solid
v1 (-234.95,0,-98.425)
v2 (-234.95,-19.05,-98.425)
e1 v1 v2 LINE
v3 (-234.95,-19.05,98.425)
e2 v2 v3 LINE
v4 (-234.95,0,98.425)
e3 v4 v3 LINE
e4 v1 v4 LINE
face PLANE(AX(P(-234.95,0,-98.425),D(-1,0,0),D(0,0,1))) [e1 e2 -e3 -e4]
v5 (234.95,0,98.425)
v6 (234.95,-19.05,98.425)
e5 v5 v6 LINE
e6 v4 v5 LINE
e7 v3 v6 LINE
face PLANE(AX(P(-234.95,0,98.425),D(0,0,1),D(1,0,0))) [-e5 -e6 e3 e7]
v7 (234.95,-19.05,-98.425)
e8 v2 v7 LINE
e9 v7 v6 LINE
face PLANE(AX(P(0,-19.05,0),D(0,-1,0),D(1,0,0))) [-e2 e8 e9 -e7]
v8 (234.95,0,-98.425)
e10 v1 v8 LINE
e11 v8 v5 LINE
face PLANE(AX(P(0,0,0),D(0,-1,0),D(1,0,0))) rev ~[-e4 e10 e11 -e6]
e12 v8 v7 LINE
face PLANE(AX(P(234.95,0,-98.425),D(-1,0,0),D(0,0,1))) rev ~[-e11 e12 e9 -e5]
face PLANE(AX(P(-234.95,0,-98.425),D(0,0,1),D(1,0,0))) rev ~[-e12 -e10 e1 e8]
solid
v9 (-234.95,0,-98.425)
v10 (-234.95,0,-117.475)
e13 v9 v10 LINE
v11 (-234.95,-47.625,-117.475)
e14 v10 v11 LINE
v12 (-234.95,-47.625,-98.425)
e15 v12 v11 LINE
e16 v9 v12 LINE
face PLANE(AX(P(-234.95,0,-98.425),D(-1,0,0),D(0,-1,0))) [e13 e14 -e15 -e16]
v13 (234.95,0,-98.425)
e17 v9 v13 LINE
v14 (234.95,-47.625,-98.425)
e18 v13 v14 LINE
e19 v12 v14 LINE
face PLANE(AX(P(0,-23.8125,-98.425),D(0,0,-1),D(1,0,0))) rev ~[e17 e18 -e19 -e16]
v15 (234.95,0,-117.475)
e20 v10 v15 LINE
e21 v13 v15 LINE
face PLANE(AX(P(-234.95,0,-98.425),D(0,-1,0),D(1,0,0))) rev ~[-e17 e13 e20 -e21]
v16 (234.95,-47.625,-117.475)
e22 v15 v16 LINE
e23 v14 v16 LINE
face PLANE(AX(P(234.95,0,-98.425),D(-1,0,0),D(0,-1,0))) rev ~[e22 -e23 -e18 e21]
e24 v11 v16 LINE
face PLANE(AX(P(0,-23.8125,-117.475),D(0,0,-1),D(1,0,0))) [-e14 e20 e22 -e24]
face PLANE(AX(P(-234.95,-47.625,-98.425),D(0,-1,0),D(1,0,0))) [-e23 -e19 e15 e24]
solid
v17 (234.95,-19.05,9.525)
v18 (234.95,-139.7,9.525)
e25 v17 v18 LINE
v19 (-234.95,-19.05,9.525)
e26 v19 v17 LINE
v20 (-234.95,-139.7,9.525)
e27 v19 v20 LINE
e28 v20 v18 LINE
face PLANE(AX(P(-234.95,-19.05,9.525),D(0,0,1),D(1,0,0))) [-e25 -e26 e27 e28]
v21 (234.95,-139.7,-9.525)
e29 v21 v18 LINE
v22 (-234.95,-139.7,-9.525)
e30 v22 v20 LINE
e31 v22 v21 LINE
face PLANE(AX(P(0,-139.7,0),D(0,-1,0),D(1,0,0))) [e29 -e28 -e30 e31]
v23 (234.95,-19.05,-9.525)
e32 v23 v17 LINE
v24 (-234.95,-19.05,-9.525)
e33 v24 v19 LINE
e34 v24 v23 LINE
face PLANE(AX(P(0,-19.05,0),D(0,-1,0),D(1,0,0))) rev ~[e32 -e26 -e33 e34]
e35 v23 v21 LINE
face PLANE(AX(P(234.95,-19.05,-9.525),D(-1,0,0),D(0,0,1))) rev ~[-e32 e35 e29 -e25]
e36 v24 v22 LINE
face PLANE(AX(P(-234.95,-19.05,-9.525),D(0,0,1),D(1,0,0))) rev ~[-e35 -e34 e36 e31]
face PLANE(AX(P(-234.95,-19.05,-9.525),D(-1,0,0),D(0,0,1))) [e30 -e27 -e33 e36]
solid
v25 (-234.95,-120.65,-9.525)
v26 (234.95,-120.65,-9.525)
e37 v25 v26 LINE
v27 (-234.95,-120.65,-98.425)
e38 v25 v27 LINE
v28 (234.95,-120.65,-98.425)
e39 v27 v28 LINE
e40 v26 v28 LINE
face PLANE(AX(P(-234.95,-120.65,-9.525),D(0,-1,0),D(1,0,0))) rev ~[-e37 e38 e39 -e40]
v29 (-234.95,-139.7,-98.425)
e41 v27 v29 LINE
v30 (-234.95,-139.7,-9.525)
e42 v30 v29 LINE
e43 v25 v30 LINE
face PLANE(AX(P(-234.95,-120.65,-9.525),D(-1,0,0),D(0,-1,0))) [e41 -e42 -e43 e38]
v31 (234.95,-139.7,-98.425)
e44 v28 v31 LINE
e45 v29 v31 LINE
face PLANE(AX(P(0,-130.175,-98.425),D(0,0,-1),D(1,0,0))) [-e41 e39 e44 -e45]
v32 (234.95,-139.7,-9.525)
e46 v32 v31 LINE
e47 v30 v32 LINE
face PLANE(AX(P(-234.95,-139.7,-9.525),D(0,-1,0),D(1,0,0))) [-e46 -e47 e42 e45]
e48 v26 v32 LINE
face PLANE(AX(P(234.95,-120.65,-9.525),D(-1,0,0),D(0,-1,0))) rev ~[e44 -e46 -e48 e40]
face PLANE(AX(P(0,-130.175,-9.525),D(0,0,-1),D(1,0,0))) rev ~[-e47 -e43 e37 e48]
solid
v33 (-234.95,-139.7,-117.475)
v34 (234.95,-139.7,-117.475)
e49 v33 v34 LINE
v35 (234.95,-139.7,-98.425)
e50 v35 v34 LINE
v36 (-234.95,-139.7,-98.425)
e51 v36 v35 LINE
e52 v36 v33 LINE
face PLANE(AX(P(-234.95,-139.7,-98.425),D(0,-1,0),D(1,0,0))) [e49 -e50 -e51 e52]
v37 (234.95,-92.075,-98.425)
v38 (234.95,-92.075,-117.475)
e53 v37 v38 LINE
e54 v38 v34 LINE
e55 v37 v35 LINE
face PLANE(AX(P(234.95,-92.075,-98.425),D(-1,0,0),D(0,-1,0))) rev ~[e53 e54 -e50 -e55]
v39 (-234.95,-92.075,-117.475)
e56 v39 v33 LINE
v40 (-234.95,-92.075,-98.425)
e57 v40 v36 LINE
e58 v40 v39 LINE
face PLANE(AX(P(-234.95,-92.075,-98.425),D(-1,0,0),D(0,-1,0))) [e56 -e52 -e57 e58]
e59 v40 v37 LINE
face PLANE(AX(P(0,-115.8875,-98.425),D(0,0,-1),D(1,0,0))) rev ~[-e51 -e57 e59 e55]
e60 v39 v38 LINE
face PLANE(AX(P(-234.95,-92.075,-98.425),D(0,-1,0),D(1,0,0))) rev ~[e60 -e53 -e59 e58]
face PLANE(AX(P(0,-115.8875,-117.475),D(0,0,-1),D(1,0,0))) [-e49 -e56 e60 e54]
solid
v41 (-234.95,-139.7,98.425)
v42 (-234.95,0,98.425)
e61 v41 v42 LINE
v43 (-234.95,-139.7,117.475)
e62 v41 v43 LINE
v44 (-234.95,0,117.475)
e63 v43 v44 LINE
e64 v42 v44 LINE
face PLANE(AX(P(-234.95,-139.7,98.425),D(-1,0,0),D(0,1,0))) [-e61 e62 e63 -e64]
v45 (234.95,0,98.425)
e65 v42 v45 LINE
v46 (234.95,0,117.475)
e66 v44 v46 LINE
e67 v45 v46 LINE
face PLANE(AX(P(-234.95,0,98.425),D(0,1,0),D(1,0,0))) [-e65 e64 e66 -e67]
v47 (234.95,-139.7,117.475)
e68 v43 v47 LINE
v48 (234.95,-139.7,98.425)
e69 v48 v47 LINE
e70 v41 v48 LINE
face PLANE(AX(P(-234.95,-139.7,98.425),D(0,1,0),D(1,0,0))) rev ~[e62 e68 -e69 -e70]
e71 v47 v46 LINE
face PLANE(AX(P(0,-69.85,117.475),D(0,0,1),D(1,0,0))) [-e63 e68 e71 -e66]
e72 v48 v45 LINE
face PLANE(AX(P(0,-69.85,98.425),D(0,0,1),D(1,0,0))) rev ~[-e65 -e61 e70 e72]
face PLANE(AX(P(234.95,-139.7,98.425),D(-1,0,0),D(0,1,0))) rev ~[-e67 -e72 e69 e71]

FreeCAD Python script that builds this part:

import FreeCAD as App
import Part
import Sketcher

V = App.Vector
Q = App.Units.Quantity

doc = App.newDocument("Part")
params = doc.addObject("Spreadsheet::Sheet", "Params")
for row, (alias, value) in enumerate([
    ("sketch1_width", "18.5 in"),
    ("sketch1_height", "7.75 in"),
    ("pad1_length", "0.75 in"),
    ("sketch2_width", "18.5 in"),
    ("sketch2_height", "0.75 in"),
    ("pad2_length", "4.75 in"),
    ("sketch3_width", "18.5 in"),
    ("sketch3_height", "0.75 in"),
    ("pad3_length", "3.5 in"),
    ("sketch4_width", "18.5 in"),
    ("sketch4_height", "1.875 in"),
    ("pad4_length", "0.75 in"),
    ("sketch5_width", "18.5 in"),
    ("sketch5_height", "1.875 in"),
    ("pad5_length", "0.75 in"),
    ("sketch6_width", "18.5 in"),
    ("sketch6_height", "5.5 in"),
    ("pad6_length", "0.75 in"),
], start=1):
    params.set(f"A{row}", alias)
    params.set(f"B{row}", "=" + value)
    params.setAlias(f"B{row}", alias)

body = doc.addObject("PartDesign::Body", "Body")

# Sketch on XZ plane
sketch1 = doc.addObject("Sketcher::SketchObject", "Sketch")
body.addObject(sketch1)
sketch1.AttachmentSupport = (doc.XZ_Plane, [""])
sketch1.MapMode = "FlatFace"
sketch1.addGeometry(Part.LineSegment(V(-235, 98, 0), V(-235, -98, 0)), False)
sketch1.addGeometry(Part.LineSegment(V(-235, -98, 0), V(235, -98, 0)), False)
sketch1.addGeometry(Part.LineSegment(V(235, -98, 0), V(235, 98, 0)), False)
sketch1.addGeometry(Part.LineSegment(V(235, 98, 0), V(-235, 98, 0)), False)
sketch1.addConstraint(Sketcher.Constraint("Coincident", 0, 2, 1, 1))
sketch1.addConstraint(Sketcher.Constraint("Coincident", 1, 2, 2, 1))
sketch1.addConstraint(Sketcher.Constraint("Coincident", 2, 2, 3, 1))
sketch1.addConstraint(Sketcher.Constraint("Coincident", 3, 2, 0, 1))
sketch1.addConstraint(Sketcher.Constraint("Vertical", 0))
sketch1.addConstraint(Sketcher.Constraint("Horizontal", 1))
sketch1.addConstraint(Sketcher.Constraint("Vertical", 2))
sketch1.addConstraint(Sketcher.Constraint("Horizontal", 3))
sketch1.addConstraint(Sketcher.Constraint("Symmetric", 0, 2, 2, 2, -1, 1))
sketch1.addConstraint(Sketcher.Constraint("DistanceX", 1, 1, 1, 2, Q("18.5 in")))
sketch1.addConstraint(Sketcher.Constraint("DistanceY", 0, 2, 0, 1, Q("7.75 in")))
sketch1.setExpression("Constraints[9]", "Params.sketch1_width")
sketch1.setExpression("Constraints[10]", "Params.sketch1_height")
pad1 = doc.addObject("PartDesign::Pad", "Pad")
body.addObject(pad1)
pad1.Profile = sketch1
pad1.setExpression("Length", "Params.pad1_length")
body2 = doc.addObject("PartDesign::Body", "Body001")

# Sketch on XZ plane
sketch2 = doc.addObject("Sketcher::SketchObject", "Sketch001")
body2.addObject(sketch2)
sketch2.AttachmentSupport = (doc.getObject("XZ_Plane001"), [""])
sketch2.MapMode = "FlatFace"
sketch2.AttachmentOffset = App.Placement(V(0, 0, 0.75 * 25.4), App.Rotation())
sketch2.addGeometry(Part.LineSegment(V(-235, 10, 0), V(-235, -10, 0)), False)
sketch2.addGeometry(Part.LineSegment(V(-235, -10, 0), V(235, -10, 0)), False)
sketch2.addGeometry(Part.LineSegment(V(235, -10, 0), V(235, 10, 0)), False)
sketch2.addGeometry(Part.LineSegment(V(235, 10, 0), V(-235, 10, 0)), False)
sketch2.addConstraint(Sketcher.Constraint("Coincident", 0, 2, 1, 1))
sketch2.addConstraint(Sketcher.Constraint("Coincident", 1, 2, 2, 1))
sketch2.addConstraint(Sketcher.Constraint("Coincident", 2, 2, 3, 1))
sketch2.addConstraint(Sketcher.Constraint("Coincident", 3, 2, 0, 1))
sketch2.addConstraint(Sketcher.Constraint("Vertical", 0))
sketch2.addConstraint(Sketcher.Constraint("Horizontal", 1))
sketch2.addConstraint(Sketcher.Constraint("Vertical", 2))
sketch2.addConstraint(Sketcher.Constraint("Horizontal", 3))
sketch2.addConstraint(Sketcher.Constraint("Symmetric", 0, 2, 2, 2, -1, 1))
sketch2.addConstraint(Sketcher.Constraint("DistanceX", 1, 1, 1, 2, Q("18.5 in")))
sketch2.addConstraint(Sketcher.Constraint("DistanceY", 0, 2, 0, 1, Q("0.75 in")))
sketch2.setExpression("Constraints[9]", "Params.sketch2_width")
sketch2.setExpression("Constraints[10]", "Params.sketch2_height")
pad2 = doc.addObject("PartDesign::Pad", "Pad001")
body2.addObject(pad2)
pad2.Profile = sketch2
pad2.setExpression("Length", "Params.pad2_length")
body3 = doc.addObject("PartDesign::Body", "Body002")

# Sketch on XY plane
sketch3 = doc.addObject("Sketcher::SketchObject", "Sketch002")
body3.addObject(sketch3)
sketch3.AttachmentSupport = (doc.getObject("XY_Plane002"), [""])
sketch3.MapMode = "FlatFace"
sketch3.AttachmentOffset = App.Placement(V(0, 0, -0.375 * 25.4), App.Rotation())
sketch3.addGeometry(Part.LineSegment(V(-235, -140, 0), V(-235, -121, 0)), False)
sketch3.addGeometry(Part.LineSegment(V(-235, -121, 0), V(235, -121, 0)), False)
sketch3.addGeometry(Part.LineSegment(V(235, -121, 0), V(235, -140, 0)), False)
sketch3.addGeometry(Part.LineSegment(V(235, -140, 0), V(-235, -140, 0)), False)
sketch3.addConstraint(Sketcher.Constraint("Coincident", 0, 2, 1, 1))
sketch3.addConstraint(Sketcher.Constraint("Coincident", 1, 2, 2, 1))
sketch3.addConstraint(Sketcher.Constraint("Coincident", 2, 2, 3, 1))
sketch3.addConstraint(Sketcher.Constraint("Coincident", 3, 2, 0, 1))
sketch3.addConstraint(Sketcher.Constraint("Vertical", 0))
sketch3.addConstraint(Sketcher.Constraint("Horizontal", 1))
sketch3.addConstraint(Sketcher.Constraint("Vertical", 2))
sketch3.addConstraint(Sketcher.Constraint("Horizontal", 3))
sketch3.addConstraint(Sketcher.Constraint("DistanceX", 1, 1, 1, 2, Q("18.5 in")))
sketch3.addConstraint(Sketcher.Constraint("DistanceY", 0, 1, 0, 2, Q("0.75 in")))
sketch3.addConstraint(Sketcher.Constraint("DistanceY", 2, 2, -1, 1, Q("5.5 in")))
sketch3.addConstraint(Sketcher.Constraint("DistanceX", 0, 2, -1, 1, Q("9.25 in")))
sketch3.setExpression("Constraints[8]", "Params.sketch3_width")
sketch3.setExpression("Constraints[9]", "Params.sketch3_height")
pad3 = doc.addObject("PartDesign::Pad", "Pad002")
body3.addObject(pad3)
pad3.Profile = sketch3
pad3.setExpression("Length", "Params.pad3_length")
pad3.Reversed = True
body4 = doc.addObject("PartDesign::Body", "Body003")

# Sketch on XY plane
sketch4 = doc.addObject("Sketcher::SketchObject", "Sketch003")
body4.addObject(sketch4)
sketch4.AttachmentSupport = (doc.getObject("XY_Plane003"), [""])
sketch4.MapMode = "FlatFace"
sketch4.AttachmentOffset = App.Placement(V(0, 0, -3.875 * 25.4), App.Rotation())
sketch4.addGeometry(Part.LineSegment(V(-235, -48, 0), V(-235, 0, 0)), False)
sketch4.addGeometry(Part.LineSegment(V(-235, 0, 0), V(235, 0, 0)), False)
sketch4.addGeometry(Part.LineSegment(V(235, 0, 0), V(235, -48, 0)), False)
sketch4.addGeometry(Part.LineSegment(V(235, -48, 0), V(-235, -48, 0)), False)
sketch4.addConstraint(Sketcher.Constraint("Coincident", 0, 2, 1, 1))
sketch4.addConstraint(Sketcher.Constraint("Coincident", 1, 2, 2, 1))
sketch4.addConstraint(Sketcher.Constraint("Coincident", 2, 2, 3, 1))
sketch4.addConstraint(Sketcher.Constraint("Coincident", 3, 2, 0, 1))
sketch4.addConstraint(Sketcher.Constraint("Vertical", 0))
sketch4.addConstraint(Sketcher.Constraint("Horizontal", 1))
sketch4.addConstraint(Sketcher.Constraint("Vertical", 2))
sketch4.addConstraint(Sketcher.Constraint("Horizontal", 3))
sketch4.addConstraint(Sketcher.Constraint("Symmetric", 0, 2, 1, 2, -1, 1))
sketch4.addConstraint(Sketcher.Constraint("DistanceX", 1, 1, 1, 2, Q("18.5 in")))
sketch4.addConstraint(Sketcher.Constraint("DistanceY", 0, 1, 0, 2, Q("1.875 in")))
sketch4.setExpression("Constraints[9]", "Params.sketch4_width")
sketch4.setExpression("Constraints[10]", "Params.sketch4_height")
pad4 = doc.addObject("PartDesign::Pad", "Pad003")
body4.addObject(pad4)
pad4.Profile = sketch4
pad4.setExpression("Length", "Params.pad4_length")
pad4.Reversed = True
body5 = doc.addObject("PartDesign::Body", "Body004")

# Sketch on XY plane
sketch5 = doc.addObject("Sketcher::SketchObject", "Sketch004")
body5.addObject(sketch5)
sketch5.AttachmentSupport = (doc.getObject("XY_Plane004"), [""])
sketch5.MapMode = "FlatFace"
sketch5.AttachmentOffset = App.Placement(V(0, 0, -3.875 * 25.4), App.Rotation())
sketch5.addGeometry(Part.LineSegment(V(-235, -140, 0), V(-235, -92, 0)), False)
sketch5.addGeometry(Part.LineSegment(V(-235, -92, 0), V(235, -92, 0)), False)
sketch5.addGeometry(Part.LineSegment(V(235, -92, 0), V(235, -140, 0)), False)
sketch5.addGeometry(Part.LineSegment(V(235, -140, 0), V(-235, -140, 0)), False)
sketch5.addConstraint(Sketcher.Constraint("Coincident", 0, 2, 1, 1))
sketch5.addConstraint(Sketcher.Constraint("Coincident", 1, 2, 2, 1))
sketch5.addConstraint(Sketcher.Constraint("Coincident", 2, 2, 3, 1))
sketch5.addConstraint(Sketcher.Constraint("Coincident", 3, 2, 0, 1))
sketch5.addConstraint(Sketcher.Constraint("Vertical", 0))
sketch5.addConstraint(Sketcher.Constraint("Horizontal", 1))
sketch5.addConstraint(Sketcher.Constraint("Vertical", 2))
sketch5.addConstraint(Sketcher.Constraint("Horizontal", 3))
sketch5.addConstraint(Sketcher.Constraint("DistanceX", 1, 1, 1, 2, Q("18.5 in")))
sketch5.addConstraint(Sketcher.Constraint("DistanceY", 2, 2, -1, 1, Q("5.5 in")))
sketch5.addConstraint(Sketcher.Constraint("DistanceY", 0, 1, 0, 2, Q("1.875 in")))
sketch5.addConstraint(Sketcher.Constraint("DistanceX", 0, 2, -1, 1, Q("9.25 in")))
sketch5.setExpression("Constraints[8]", "Params.sketch5_width")
sketch5.setExpression("Constraints[10]", "Params.sketch5_height")
pad5 = doc.addObject("PartDesign::Pad", "Pad004")
body5.addObject(pad5)
pad5.Profile = sketch5
pad5.setExpression("Length", "Params.pad5_length")
pad5.Reversed = True
body6 = doc.addObject("PartDesign::Body", "Body005")

# Sketch on XY plane
sketch6 = doc.addObject("Sketcher::SketchObject", "Sketch005")
body6.addObject(sketch6)
sketch6.AttachmentSupport = (doc.getObject("XY_Plane005"), [""])
sketch6.MapMode = "FlatFace"
sketch6.AttachmentOffset = App.Placement(V(0, 0, 3.875 * 25.4), App.Rotation())
sketch6.addGeometry(Part.LineSegment(V(-235, 0, 0), V(-235, -140, 0)), False)
sketch6.addGeometry(Part.LineSegment(V(-235, -140, 0), V(235, -140, 0)), False)
sketch6.addGeometry(Part.LineSegment(V(235, -140, 0), V(235, 0, 0)), False)
sketch6.addGeometry(Part.LineSegment(V(235, 0, 0), V(-235, 0, 0)), False)
sketch6.addConstraint(Sketcher.Constraint("Coincident", 0, 2, 1, 1))
sketch6.addConstraint(Sketcher.Constraint("Coincident", 1, 2, 2, 1))
sketch6.addConstraint(Sketcher.Constraint("Coincident", 2, 2, 3, 1))
sketch6.addConstraint(Sketcher.Constraint("Coincident", 3, 2, 0, 1))
sketch6.addConstraint(Sketcher.Constraint("Vertical", 0))
sketch6.addConstraint(Sketcher.Constraint("Horizontal", 1))
sketch6.addConstraint(Sketcher.Constraint("Vertical", 2))
sketch6.addConstraint(Sketcher.Constraint("Horizontal", 3))
sketch6.addConstraint(Sketcher.Constraint("Symmetric", 2, 2, 3, 2, -1, 1))
sketch6.addConstraint(Sketcher.Constraint("DistanceX", 1, 1, 1, 2, Q("18.5 in")))
sketch6.addConstraint(Sketcher.Constraint("DistanceY", 0, 2, 0, 1, Q("5.5 in")))
sketch6.setExpression("Constraints[9]", "Params.sketch6_width")
sketch6.setExpression("Constraints[10]", "Params.sketch6_height")
pad6 = doc.addObject("PartDesign::Pad", "Pad005")
body6.addObject(pad6)
pad6.Profile = sketch6
pad6.setExpression("Length", "Params.pad6_length")

doc.recompute()
